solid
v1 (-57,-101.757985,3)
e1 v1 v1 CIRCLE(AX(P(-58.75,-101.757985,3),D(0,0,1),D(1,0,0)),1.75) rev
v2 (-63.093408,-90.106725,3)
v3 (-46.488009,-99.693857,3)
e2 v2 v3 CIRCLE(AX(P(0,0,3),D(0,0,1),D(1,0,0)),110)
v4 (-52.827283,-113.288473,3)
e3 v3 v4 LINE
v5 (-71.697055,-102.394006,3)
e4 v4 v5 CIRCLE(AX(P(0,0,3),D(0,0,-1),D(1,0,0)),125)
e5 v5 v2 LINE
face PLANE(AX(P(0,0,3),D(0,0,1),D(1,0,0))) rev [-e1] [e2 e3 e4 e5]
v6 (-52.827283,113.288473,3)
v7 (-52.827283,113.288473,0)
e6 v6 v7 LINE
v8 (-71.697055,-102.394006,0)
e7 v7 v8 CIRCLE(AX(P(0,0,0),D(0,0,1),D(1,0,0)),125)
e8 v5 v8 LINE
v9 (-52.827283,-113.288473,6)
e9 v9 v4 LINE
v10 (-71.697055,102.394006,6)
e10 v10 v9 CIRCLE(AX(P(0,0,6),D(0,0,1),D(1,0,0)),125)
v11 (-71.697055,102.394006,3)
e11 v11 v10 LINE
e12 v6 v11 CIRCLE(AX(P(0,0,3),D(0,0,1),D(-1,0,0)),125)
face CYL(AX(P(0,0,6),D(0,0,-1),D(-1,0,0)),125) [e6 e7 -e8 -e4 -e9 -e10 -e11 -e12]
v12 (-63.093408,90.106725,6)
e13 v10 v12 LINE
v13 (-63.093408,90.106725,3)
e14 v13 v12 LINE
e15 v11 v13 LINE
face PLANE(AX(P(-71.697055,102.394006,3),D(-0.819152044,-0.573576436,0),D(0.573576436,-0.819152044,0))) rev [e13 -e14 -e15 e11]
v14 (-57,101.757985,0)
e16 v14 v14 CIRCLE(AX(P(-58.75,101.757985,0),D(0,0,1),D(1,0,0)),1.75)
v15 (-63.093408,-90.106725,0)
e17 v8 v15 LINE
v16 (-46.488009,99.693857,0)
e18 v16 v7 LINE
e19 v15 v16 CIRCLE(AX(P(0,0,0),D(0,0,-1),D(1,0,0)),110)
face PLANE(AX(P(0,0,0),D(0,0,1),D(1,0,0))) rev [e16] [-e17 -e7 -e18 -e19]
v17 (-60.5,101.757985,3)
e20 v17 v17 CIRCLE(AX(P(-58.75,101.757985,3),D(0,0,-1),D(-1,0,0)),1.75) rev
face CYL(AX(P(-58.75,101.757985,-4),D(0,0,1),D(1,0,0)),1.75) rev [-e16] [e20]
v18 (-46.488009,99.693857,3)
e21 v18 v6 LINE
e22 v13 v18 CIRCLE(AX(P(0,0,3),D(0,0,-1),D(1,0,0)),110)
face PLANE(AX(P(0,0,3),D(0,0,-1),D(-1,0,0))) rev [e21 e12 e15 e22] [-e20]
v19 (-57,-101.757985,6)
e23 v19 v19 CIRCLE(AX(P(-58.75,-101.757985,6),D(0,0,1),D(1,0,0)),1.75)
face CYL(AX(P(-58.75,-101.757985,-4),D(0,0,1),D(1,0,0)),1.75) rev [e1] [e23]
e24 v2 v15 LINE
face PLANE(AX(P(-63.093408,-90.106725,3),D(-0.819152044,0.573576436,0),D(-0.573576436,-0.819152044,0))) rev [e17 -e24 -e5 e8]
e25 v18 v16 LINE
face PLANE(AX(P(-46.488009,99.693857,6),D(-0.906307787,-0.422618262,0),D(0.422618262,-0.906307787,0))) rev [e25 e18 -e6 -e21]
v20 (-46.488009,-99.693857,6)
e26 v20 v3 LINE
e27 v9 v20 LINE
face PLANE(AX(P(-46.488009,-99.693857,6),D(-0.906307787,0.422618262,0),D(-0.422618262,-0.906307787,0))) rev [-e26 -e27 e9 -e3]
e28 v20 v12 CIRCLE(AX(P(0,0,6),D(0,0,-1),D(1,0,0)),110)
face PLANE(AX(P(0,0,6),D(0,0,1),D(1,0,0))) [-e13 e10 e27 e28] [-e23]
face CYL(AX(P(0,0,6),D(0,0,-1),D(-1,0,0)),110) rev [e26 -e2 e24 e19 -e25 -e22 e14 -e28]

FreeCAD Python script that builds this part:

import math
import FreeCAD as App
import Part
import Sketcher
Q = App.Units.Quantity

doc = App.newDocument("Part")
body = doc.addObject("PartDesign::Body", "Body")

# Sketch on XY plane
sketch1 = doc.addObject("Sketcher::SketchObject", "Sketch")
body.addObject(sketch1)
sketch1.AttachmentSupport = (doc.XY_Plane, [""])
sketch1.MapMode = "FlatFace"
sketch1.addGeometry([
    Part.LineSegment(App.Vector(-53, -113, 0), App.Vector(-46, -100, 0)),
    Part.ArcOfCircle(Part.Circle(App.Vector(0, 0, 0), App.Vector(0, 0, 1), 110), math.radians(115), math.radians(245)),
    Part.LineSegment(App.Vector(-46, 100, 0), App.Vector(-53, 113, 0)),
    Part.ArcOfCircle(Part.Circle(App.Vector(0, 0, 0), App.Vector(0, 0, 1), 125), math.radians(115), math.radians(245)),
], False)
sketch1.addConstraint([
    Sketcher.Constraint("Coincident", 0, 2, 1, 2),
    Sketcher.Constraint("Coincident", 1, 1, 2, 1),
    Sketcher.Constraint("Coincident", 2, 2, 3, 1),
    Sketcher.Constraint("Coincident", 3, 2, 0, 1),
    Sketcher.Constraint("Coincident", 1, 3, -1, 1),
    Sketcher.Constraint("Coincident", 3, 3, -1, 1),
    Sketcher.Constraint("Vertical", 0, 2, 1, 1),
    Sketcher.Constraint("Vertical", 2, 2, 3, 2),
    Sketcher.Constraint("Radius", 1, 110.0),
    Sketcher.Constraint("Radius", 3, 125.0),
    Sketcher.Constraint("Angle", 0, Q("65 deg")),
    Sketcher.Constraint("DistanceX", 0, 2, -1, 1, 46.488009),
])
pad1 = doc.addObject("PartDesign::Pad", "Pad")
body.addObject(pad1)
pad1.Profile = sketch1
pad1.Length = 6

# Sketch on XY plane
sketch2 = doc.addObject("Sketcher::SketchObject", "Sketch001")
body.addObject(sketch2)
sketch2.AttachmentSupport = (doc.XY_Plane, [""])
sketch2.MapMode = "FlatFace"
sketch2.AttachmentOffset = App.Placement(App.Vector(0, 0, 6), App.Rotation())
sketch2.addGeometry([
    Part.Circle(App.Vector(-58.8, 101.8, 0), App.Vector(0, 0, 1), 1.8),
    Part.Circle(App.Vector(-58.8, -101.8, 0), App.Vector(0, 0, 1), 1.8),
], False)
sketch2.addConstraint([
    Sketcher.Constraint("Equal", 0, 1),
    Sketcher.Constraint("Symmetric", 0, 3, 1, 3, -1),
    Sketcher.Constraint("Diameter", 0, 3.5),
    Sketcher.Constraint("DistanceX", 0, 3, -1, 1, 58.75),
    Sketcher.Constraint("DistanceY", 1, 3, 0, 3, 203.51597),
])
pocket1 = doc.addObject("PartDesign::Pocket", "Pocket")
body.addObject(pocket1)
pocket1.Profile = sketch2
pocket1.Length = 10

# Sketch on XY plane
sketch3 = doc.addObject("Sketcher::SketchObject", "Sketch002")
body.addObject(sketch3)
sketch3.AttachmentSupport = (doc.XY_Plane, [""])
sketch3.MapMode = "FlatFace"
sketch3.AttachmentOffset = App.Placement(App.Vector(0, 0, 3), App.Rotation())
sketch3.addGeometry([
    Part.LineSegment(App.Vector(-72, 102, 0), App.Vector(-63, 90, 0)),
    Part.ArcOfCircle(Part.Circle(App.Vector(0, 0, 0), App.Vector(0, 0, 1), 110), math.radians(115), math.radians(125)),
    Part.LineSegment(App.Vector(-46, 100, 0), App.Vector(-53, 113, 0)),
    Part.ArcOfCircle(Part.Circle(App.Vector(0, 0, 0), App.Vector(0, 0, 1), 125), math.radians(115), math.radians(125)),
], False)
sketch3.addConstraint([
    Sketcher.Constraint("Coincident", 0, 2, 1, 2),
    Sketcher.Constraint("Coincident", 1, 1, 2, 1),
    Sketcher.Constraint("Coincident", 2, 2, 3, 1),
    Sketcher.Constraint("Coincident", 3, 2, 0, 1),
    Sketcher.Constraint("Coincident", 1, 3, -1, 1),
    Sketcher.Constraint("Coincident", 3, 3, -1, 1),
    Sketcher.Constraint("Radius", 1, 110.0),
    Sketcher.Constraint("Radius", 3, 125.0),
    Sketcher.Constraint("Angle", 0, Q("-55 deg")),
    Sketcher.Constraint("Angle", 2, Q("115 deg")),
    Sketcher.Constraint("DistanceX", 0, 2, 1, 1, 16.605399),
    Sketcher.Constraint("DistanceX", 1, 1, -1, 1, 46.488009),
])
pocket2 = doc.addObject("PartDesign::Pocket", "Pocket001")
body.addObject(pocket2)
pocket2.Profile = sketch3
pocket2.Length = 3
pocket2.Reversed = True

# Sketch on XY plane
sketch4 = doc.addObject("Sketcher::SketchObject", "Sketch003")
body.addObject(sketch4)
sketch4.AttachmentSupport = (doc.XY_Plane, [""])
sketch4.MapMode = "FlatFace"
sketch4.addGeometry([
    Part.LineSegment(App.Vector(-72, -102, 0), App.Vector(-63, -90, 0)),
    Part.ArcOfCircle(Part.Circle(App.Vector(0, 0, 0), App.Vector(0, 0, 1), 110), math.radians(-125), math.radians(-115)),
    Part.LineSegment(App.Vector(-46, -100, 0), App.Vector(-53, -113, 0)),
    Part.ArcOfCircle(Part.Circle(App.Vector(0, 0, 0), App.Vector(0, 0, 1), 125), math.radians(-125), math.radians(-115)),
], False)
sketch4.addConstraint([
    Sketcher.Constraint("Coincident", 0, 2, 1, 1),
    Sketcher.Constraint("Coincident", 1, 2, 2, 1),
    Sketcher.Constraint("Coincident", 2, 2, 3, 2),
    Sketcher.Constraint("Coincident", 3, 1, 0, 1),
    Sketcher.Constraint("Coincident", 1, 3, -1, 1),
    Sketcher.Constraint("Coincident", 3, 3, -1, 1),
    Sketcher.Constraint("Radius", 1, 110.0),
    Sketcher.Constraint("Radius", 3, 125.0),
    Sketcher.Constraint("Angle", 0, Q("55 deg")),
    Sketcher.Constraint("Angle", 2, Q("-115 deg")),
    Sketcher.Constraint("DistanceX", 0, 2, 1, 2, 16.605399),
    Sketcher.Constraint("DistanceX", 1, 2, -1, 1, 46.488009),
])
pocket3 = doc.addObject("PartDesign::Pocket", "Pocket002")
body.addObject(pocket3)
pocket3.Profile = sketch4
pocket3.Length = 3
pocket3.Reversed = True

doc.recompute()
